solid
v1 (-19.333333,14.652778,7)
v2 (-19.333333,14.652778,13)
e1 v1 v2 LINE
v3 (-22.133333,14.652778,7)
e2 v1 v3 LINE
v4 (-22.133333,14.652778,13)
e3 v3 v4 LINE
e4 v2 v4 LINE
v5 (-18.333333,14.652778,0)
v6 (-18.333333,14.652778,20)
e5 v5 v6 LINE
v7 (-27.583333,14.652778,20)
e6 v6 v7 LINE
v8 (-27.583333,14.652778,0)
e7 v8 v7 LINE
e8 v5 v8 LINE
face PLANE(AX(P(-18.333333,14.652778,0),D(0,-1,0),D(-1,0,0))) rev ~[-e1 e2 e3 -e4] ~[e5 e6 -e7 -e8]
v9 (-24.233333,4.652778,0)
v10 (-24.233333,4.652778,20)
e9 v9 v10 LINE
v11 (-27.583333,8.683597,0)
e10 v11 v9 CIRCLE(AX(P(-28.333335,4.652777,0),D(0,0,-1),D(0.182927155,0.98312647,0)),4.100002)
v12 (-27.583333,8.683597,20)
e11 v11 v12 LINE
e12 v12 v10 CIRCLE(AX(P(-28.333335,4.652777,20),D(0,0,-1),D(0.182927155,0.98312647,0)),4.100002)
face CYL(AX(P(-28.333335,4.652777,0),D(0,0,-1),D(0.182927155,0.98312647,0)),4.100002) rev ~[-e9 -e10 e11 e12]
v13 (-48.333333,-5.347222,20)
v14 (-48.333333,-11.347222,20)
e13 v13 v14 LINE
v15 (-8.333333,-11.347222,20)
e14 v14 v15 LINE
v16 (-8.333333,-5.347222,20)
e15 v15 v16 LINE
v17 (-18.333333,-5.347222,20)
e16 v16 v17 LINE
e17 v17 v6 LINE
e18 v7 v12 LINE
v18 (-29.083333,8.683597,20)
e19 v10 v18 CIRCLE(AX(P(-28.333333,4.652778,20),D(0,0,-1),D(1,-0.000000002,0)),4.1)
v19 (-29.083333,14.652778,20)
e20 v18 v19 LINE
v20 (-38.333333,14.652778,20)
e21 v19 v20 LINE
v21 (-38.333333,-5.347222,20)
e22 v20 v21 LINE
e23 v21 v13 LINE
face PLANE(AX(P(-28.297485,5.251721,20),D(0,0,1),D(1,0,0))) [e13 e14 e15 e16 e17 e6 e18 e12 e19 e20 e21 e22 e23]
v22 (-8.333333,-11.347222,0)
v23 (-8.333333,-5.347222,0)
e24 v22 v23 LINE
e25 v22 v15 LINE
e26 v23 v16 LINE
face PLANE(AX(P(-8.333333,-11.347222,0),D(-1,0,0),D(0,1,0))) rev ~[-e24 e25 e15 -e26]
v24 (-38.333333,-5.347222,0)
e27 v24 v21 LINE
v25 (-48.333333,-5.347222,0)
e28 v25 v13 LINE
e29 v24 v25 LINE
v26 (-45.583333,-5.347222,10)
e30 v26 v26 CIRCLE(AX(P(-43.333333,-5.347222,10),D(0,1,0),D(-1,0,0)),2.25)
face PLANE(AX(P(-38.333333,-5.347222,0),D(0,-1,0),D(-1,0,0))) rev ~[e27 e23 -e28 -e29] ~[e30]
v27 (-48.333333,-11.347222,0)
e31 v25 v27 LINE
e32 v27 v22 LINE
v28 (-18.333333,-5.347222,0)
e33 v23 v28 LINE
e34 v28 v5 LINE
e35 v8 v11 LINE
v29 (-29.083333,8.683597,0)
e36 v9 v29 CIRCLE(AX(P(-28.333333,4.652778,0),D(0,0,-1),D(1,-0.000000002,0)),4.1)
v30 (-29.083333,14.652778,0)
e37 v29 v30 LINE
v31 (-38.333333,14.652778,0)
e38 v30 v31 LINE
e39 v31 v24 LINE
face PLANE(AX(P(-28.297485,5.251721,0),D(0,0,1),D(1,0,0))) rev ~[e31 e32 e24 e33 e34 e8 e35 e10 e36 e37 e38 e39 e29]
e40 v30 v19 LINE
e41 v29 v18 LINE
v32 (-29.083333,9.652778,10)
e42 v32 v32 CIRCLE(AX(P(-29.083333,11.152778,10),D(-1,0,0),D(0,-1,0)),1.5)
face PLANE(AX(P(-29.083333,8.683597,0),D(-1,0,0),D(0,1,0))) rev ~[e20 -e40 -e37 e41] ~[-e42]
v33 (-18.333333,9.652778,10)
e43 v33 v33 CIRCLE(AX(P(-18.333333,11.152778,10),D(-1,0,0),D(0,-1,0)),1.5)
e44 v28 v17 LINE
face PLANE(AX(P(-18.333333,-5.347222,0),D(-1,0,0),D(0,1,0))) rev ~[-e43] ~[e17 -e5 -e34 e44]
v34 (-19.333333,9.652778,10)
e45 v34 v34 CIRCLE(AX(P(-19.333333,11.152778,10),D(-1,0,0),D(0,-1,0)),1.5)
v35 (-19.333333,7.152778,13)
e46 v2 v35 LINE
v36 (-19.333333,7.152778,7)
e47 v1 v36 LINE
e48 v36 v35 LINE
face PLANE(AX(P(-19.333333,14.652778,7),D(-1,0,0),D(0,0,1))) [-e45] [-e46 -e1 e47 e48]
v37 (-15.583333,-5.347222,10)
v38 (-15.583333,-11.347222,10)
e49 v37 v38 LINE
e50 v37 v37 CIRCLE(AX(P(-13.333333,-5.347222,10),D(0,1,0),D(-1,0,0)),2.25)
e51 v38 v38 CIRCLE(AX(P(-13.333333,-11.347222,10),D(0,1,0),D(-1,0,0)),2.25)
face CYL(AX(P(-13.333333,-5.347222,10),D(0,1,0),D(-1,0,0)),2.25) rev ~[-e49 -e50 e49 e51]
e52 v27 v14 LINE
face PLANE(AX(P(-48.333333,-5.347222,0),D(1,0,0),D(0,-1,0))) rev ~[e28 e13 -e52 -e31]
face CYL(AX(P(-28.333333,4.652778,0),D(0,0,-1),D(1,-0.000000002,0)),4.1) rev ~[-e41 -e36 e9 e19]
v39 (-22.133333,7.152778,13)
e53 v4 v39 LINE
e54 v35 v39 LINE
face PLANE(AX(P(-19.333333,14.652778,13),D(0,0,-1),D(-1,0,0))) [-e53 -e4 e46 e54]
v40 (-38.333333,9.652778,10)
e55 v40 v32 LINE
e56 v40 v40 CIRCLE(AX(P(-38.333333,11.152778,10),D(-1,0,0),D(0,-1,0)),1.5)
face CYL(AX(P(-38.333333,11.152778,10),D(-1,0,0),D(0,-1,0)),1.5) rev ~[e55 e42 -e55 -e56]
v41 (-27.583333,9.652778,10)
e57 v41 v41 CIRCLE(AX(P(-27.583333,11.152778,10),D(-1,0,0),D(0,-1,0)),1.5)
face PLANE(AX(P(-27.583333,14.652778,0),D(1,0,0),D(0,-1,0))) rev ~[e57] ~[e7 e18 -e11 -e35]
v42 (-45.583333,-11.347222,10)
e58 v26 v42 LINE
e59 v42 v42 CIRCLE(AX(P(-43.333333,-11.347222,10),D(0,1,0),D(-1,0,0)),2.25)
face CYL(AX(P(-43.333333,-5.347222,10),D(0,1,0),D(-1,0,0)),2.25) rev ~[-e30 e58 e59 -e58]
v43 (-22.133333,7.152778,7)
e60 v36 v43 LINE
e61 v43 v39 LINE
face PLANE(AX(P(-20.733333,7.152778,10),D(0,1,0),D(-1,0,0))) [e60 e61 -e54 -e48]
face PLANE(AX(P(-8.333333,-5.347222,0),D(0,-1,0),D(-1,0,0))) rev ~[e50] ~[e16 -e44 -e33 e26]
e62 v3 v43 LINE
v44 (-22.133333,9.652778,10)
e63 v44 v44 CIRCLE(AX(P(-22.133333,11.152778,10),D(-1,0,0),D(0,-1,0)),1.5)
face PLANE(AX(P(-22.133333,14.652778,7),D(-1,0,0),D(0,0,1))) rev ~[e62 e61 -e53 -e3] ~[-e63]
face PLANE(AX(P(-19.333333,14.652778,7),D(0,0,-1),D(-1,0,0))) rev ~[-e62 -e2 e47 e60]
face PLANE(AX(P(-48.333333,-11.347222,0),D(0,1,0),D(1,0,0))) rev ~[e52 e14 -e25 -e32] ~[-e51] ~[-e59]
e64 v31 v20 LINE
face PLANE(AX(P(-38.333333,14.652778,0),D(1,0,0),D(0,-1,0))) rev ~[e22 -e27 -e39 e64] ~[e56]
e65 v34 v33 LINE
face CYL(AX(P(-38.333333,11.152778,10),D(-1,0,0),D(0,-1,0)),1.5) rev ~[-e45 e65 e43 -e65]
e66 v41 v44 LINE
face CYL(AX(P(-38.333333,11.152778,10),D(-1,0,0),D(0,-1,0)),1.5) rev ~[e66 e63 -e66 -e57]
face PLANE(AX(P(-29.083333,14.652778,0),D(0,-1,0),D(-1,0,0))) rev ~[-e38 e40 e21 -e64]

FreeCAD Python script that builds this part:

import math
import FreeCAD as App
import Part
import Sketcher

V = App.Vector
Q = App.Units.Quantity


def add_polygon(sketch, points):
    """Adds a closed chain of lines whose ends are joined by coincident constraints."""
    first, n = sketch.GeometryCount, len(points)
    for a, b in zip(points, points[1:] + points[:1]):
        sketch.addGeometry(Part.LineSegment(App.Vector(*a, 0), App.Vector(*b, 0)), False)
    for i in range(n):
        sketch.addConstraint(Sketcher.Constraint("Coincident", first + i, 2, first + (i + 1) % n, 1))

doc = App.newDocument("Part")
params = doc.addObject("Spreadsheet::Sheet", "Params")
for row, (alias, value) in enumerate([
    ("sketch1_radius", "4.100002 mm"),
    ("sketch1_width", "10 mm"),
    ("sketch1_width2", "40 mm"),
    ("sketch1_height", "20 mm"),
    ("sketch1_height2", "6 mm"),
    ("pad1_length", "20 mm"),
    ("sketch2_diameter", "3 mm"),
    ("pocket1_length", "20 mm"),
    ("sketch3_height", "6 mm"),
    ("sketch3_width", "2.8 mm"),
    ("pocket2_length", "7.5 mm"),
    ("sketch4_diameter", "4.5 mm"),
    ("pocket3_length", "6 mm"),
], start=1):
    params.set(f"A{row}", alias)
    params.set(f"B{row}", "=" + value)
    params.setAlias(f"B{row}", alias)

body = doc.addObject("PartDesign::Body", "Body")

sketch1 = body.newObject("Sketcher::SketchObject", "Sketch")
sketch1.AttachmentSupport = (doc.getObject("XY_Plane"), [""])
sketch1.MapMode = "FlatFace"
sketch1.addGeometry(Part.LineSegment(V(-38.333333, 14.652778, 0), V(-38.333333, -5.347222, 0)), False)
sketch1.addGeometry(Part.LineSegment(V(-38.333333, -5.347222, 0), V(-48.333333, -5.347222, 0)), False)
sketch1.addGeometry(Part.LineSegment(V(-48.333333, -5.347222, 0), V(-48.333333, -11.347222, 0)), False)
sketch1.addGeometry(Part.LineSegment(V(-48.333333, -11.347222, 0), V(-8.333333, -11.347222, 0)), False)
sketch1.addGeometry(Part.LineSegment(V(-8.333333, -11.347222, 0), V(-8.333333, -5.347222, 0)), False)
sketch1.addGeometry(Part.LineSegment(V(-8.333333, -5.347222, 0), V(-18.333333, -5.347222, 0)), False)
sketch1.addGeometry(Part.LineSegment(V(-18.333333, -5.347222, 0), V(-18.333333, 14.652778, 0)), False)
sketch1.addGeometry(Part.LineSegment(V(-18.333333, 14.652778, 0), V(-27.583333, 14.652778, 0)), False)
sketch1.addGeometry(Part.LineSegment(V(-27.583333, 14.652778, 0), V(-27.583333, 8.683597, 0)), False)
sketch1.addGeometry(Part.ArcOfCircle(Part.Circle(V(-28.333335, 4.652777, 0), V(0, 0, 1), 4.100002), math.radians(0.000016), math.radians(79.459695)), False)
sketch1.addGeometry(Part.ArcOfCircle(Part.Circle(V(-28.333333, 4.652778, 0), V(0, 0, 1), 4.1), math.radians(100.540283), math.radians(360)), False)
sketch1.addGeometry(Part.LineSegment(V(-29.083333, 8.683597, 0), V(-29.083333, 14.652778, 0)), False)
sketch1.addGeometry(Part.LineSegment(V(-29.083333, 14.652778, 0), V(-38.333333, 14.652778, 0)), False)
sketch1.addConstraint(Sketcher.Constraint("Coincident", 0, 2, 1, 1))
sketch1.addConstraint(Sketcher.Constraint("Coincident", 1, 2, 2, 1))
sketch1.addConstraint(Sketcher.Constraint("Coincident", 2, 2, 3, 1))
sketch1.addConstraint(Sketcher.Constraint("Coincident", 3, 2, 4, 1))
sketch1.addConstraint(Sketcher.Constraint("Coincident", 4, 2, 5, 1))
sketch1.addConstraint(Sketcher.Constraint("Coincident", 5, 2, 6, 1))
sketch1.addConstraint(Sketcher.Constraint("Coincident", 6, 2, 7, 1))
sketch1.addConstraint(Sketcher.Constraint("Coincident", 7, 2, 8, 1))
sketch1.addConstraint(Sketcher.Constraint("Coincident", 8, 2, 9, 2))
sketch1.addConstraint(Sketcher.Constraint("Tangent", 9, 1, 10, 2))
sketch1.addConstraint(Sketcher.Constraint("Coincident", 10, 1, 11, 1))
sketch1.addConstraint(Sketcher.Constraint("Coincident", 11, 2, 12, 1))
sketch1.addConstraint(Sketcher.Constraint("Coincident", 12, 2, 0, 1))
sketch1.addConstraint(Sketcher.Constraint("Vertical", 0))
sketch1.addConstraint(Sketcher.Constraint("Horizontal", 1))
sketch1.addConstraint(Sketcher.Constraint("Vertical", 2))
sketch1.addConstraint(Sketcher.Constraint("Horizontal", 3))
sketch1.addConstraint(Sketcher.Constraint("Vertical", 4))
sketch1.addConstraint(Sketcher.Constraint("Horizontal", 5))
sketch1.addConstraint(Sketcher.Constraint("Vertical", 6))
sketch1.addConstraint(Sketcher.Constraint("Horizontal", 7))
sketch1.addConstraint(Sketcher.Constraint("Vertical", 8))
sketch1.addConstraint(Sketcher.Constraint("Vertical", 11))
sketch1.addConstraint(Sketcher.Constraint("Horizontal", 12))
sketch1.addConstraint(Sketcher.Constraint("Equal", 9, 10))
sketch1.addConstraint(Sketcher.Constraint("Horizontal", 1, 2, 4, 2))
sketch1.addConstraint(Sketcher.Constraint("Horizontal", 10, 3, 9, 1))
sketch1.addConstraint(Sketcher.Constraint("Horizontal", 8, 2, 10, 1))
sketch1.addConstraint(Sketcher.Constraint("Horizontal", 7, 2, 11, 2))
sketch1.addConstraint(Sketcher.Constraint("Equal", 1, 5))
sketch1.addConstraint(Sketcher.Constraint("Equal", 7, 12))
sketch1.addConstraint(Sketcher.Constraint("Radius", 9, Q("4.100002 mm")))
sketch1.addConstraint(Sketcher.Constraint("DistanceX", 1, 2, 1, 1, Q("10 mm")))
sketch1.addConstraint(Sketcher.Constraint("DistanceX", 3, 1, 3, 2, Q("40 mm")))
sketch1.addConstraint(Sketcher.Constraint("DistanceY", 0, 2, 0, 1, Q("20 mm")))
sketch1.addConstraint(Sketcher.Constraint("DistanceY", 2, 2, 2, 1, Q("6 mm")))
sketch1.addConstraint(Sketcher.Constraint("DistanceY", 0, 2, 9, 3, Q("9.999999 mm")))
sketch1.addConstraint(Sketcher.Constraint("DistanceX", 7, 2, 7, 1, Q("9.25 mm")))
sketch1.addConstraint(Sketcher.Constraint("DistanceY", -1, 1, 10, 3, Q("4.652778 mm")))
sketch1.addConstraint(Sketcher.Constraint("DistanceX", 9, 3, -1, 1, Q("28.333335 mm")))
sketch1.setExpression("Constraints[31]", "Params.sketch1_radius")
sketch1.setExpression("Constraints[32]", "Params.sketch1_width")
sketch1.setExpression("Constraints[33]", "Params.sketch1_width2")
sketch1.setExpression("Constraints[34]", "Params.sketch1_height")
sketch1.setExpression("Constraints[35]", "Params.sketch1_height2")
pad1 = body.newObject("PartDesign::Pad", "Pad")
pad1.Profile = sketch1
pad1.setExpression("Length", "Params.pad1_length")

sketch2 = body.newObject("Sketcher::SketchObject", "Sketch001")
sketch2.AttachmentSupport = (doc.getObject("YZ_Plane"), [""])
sketch2.MapMode = "FlatFace"
sketch2.AttachmentOffset = App.Placement(V(0, 0, -38.333333), App.Rotation())
sketch2.addGeometry(Part.Circle(V(11.152778, 10, 0), V(0, 0, 1), 1.5), False)
sketch2.addConstraint(Sketcher.Constraint("Diameter", 0, Q("3 mm")))
sketch2.addConstraint(Sketcher.Constraint("DistanceY", -1, 1, 0, 3, Q("10 mm")))
sketch2.addConstraint(Sketcher.Constraint("DistanceX", -1, 1, 0, 3, Q("11.152778 mm")))
sketch2.setExpression("Constraints[0]", "Params.sketch2_diameter")
pocket1 = body.newObject("PartDesign::Pocket", "Pocket")
pocket1.Profile = sketch2
pocket1.setExpression("Length", "Params.pocket1_length")
pocket1.Reversed = True

sketch3 = body.newObject("Sketcher::SketchObject", "Sketch002")
sketch3.AttachmentSupport = (doc.getObject("XZ_Plane"), [""])
sketch3.MapMode = "FlatFace"
sketch3.AttachmentOffset = App.Placement(V(0, 0, -14.652778), App.Rotation())
add_polygon(sketch3, [(-19.333333, 13), (-19.333333, 7), (-22.133333, 7), (-22.133333, 13)])
sketch3.addConstraint(Sketcher.Constraint("Vertical", 0))
sketch3.addConstraint(Sketcher.Constraint("Horizontal", 1))
sketch3.addConstraint(Sketcher.Constraint("Vertical", 2))
sketch3.addConstraint(Sketcher.Constraint("Horizontal", 3))
sketch3.addConstraint(Sketcher.Constraint("DistanceY", 0, 2, 0, 1, Q("6 mm")))
sketch3.addConstraint(Sketcher.Constraint("DistanceX", 1, 2, 1, 1, Q("2.8 mm")))
sketch3.addConstraint(Sketcher.Constraint("DistanceY", -1, 1, 0, 2, Q("7 mm")))
sketch3.addConstraint(Sketcher.Constraint("DistanceX", 0, 2, -1, 1, Q("19.333333 mm")))
sketch3.setExpression("Constraints[8]", "Params.sketch3_height")
sketch3.setExpression("Constraints[9]", "Params.sketch3_width")
pocket2 = body.newObject("PartDesign::Pocket", "Pocket001")
pocket2.Profile = sketch3
pocket2.setExpression("Length", "Params.pocket2_length")
pocket2.Reversed = True

sketch4 = body.newObject("Sketcher::SketchObject", "Sketch003")
sketch4.AttachmentSupport = (doc.getObject("XZ_Plane"), [""])
sketch4.MapMode = "FlatFace"
sketch4.AttachmentOffset = App.Placement(V(0, 0, 5.347222), App.Rotation())
sketch4.addGeometry(Part.Circle(V(-43.333333, 10, 0), V(0, 0, 1), 2.25), False)
sketch4.addGeometry(Part.Circle(V(-13.333333, 10, 0), V(0, 0, 1), 2.25), False)
sketch4.addConstraint(Sketcher.Constraint("Equal", 0, 1))
sketch4.addConstraint(Sketcher.Constraint("Horizontal", 0, 3, 1, 3))
sketch4.addConstraint(Sketcher.Constraint("Diameter", 0, Q("4.5 mm")))
sketch4.addConstraint(Sketcher.Constraint("DistanceY", -1, 1, 0, 3, Q("10 mm")))
sketch4.addConstraint(Sketcher.Constraint("DistanceX", 0, 3, 1, 3, Q("30 mm")))
sketch4.addConstraint(Sketcher.Constraint("DistanceX", 0, 3, -1, 1, Q("43.333333 mm")))
sketch4.setExpression("Constraints[2]", "Params.sketch4_diameter")
pocket3 = body.newObject("PartDesign::Pocket", "Pocket002")
pocket3.Profile = sketch4
pocket3.setExpression("Length", "Params.pocket3_length")
pocket3.Reversed = True

doc.recompute()
